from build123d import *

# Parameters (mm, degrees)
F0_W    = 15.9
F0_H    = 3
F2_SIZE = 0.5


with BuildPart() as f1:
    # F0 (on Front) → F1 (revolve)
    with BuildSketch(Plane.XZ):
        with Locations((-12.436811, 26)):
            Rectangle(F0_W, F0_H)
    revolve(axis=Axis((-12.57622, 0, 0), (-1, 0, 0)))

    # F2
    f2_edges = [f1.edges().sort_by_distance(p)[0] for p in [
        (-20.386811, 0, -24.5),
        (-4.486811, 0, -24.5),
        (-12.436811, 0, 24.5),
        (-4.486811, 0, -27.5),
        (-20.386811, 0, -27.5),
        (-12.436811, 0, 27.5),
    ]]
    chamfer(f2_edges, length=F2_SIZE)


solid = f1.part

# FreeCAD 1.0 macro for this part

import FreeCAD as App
import Part
import Sketcher


def add_polygon(sketch, points):
    """Adds a closed chain of lines whose ends are joined by coincident constraints."""
    first, n = sketch.GeometryCount, len(points)
    for a, b in zip(points, points[1:] + points[:1]):
        sketch.addGeometry(Part.LineSegment(App.Vector(*a, 0), App.Vector(*b, 0)), False)
    for i in range(n):
        sketch.addConstraint(Sketcher.Constraint("Coincident", first + i, 2, first + (i + 1) % n, 1))

doc = App.newDocument("Part")
body = doc.addObject("PartDesign::Body", "Body")

# Sketch on XZ plane
sketch1 = body.newObject("Sketcher::SketchObject", "Sketch")
sketch1.AttachmentSupport = (doc.getObject("XZ_Plane"), [""])
sketch1.MapMode = "FlatFace"
add_polygon(sketch1, [(-20.4, 27.5), (-20.4, 24.5), (-4.5, 24.5), (-4.5, 27.5)])  # lines 0-3
sketch1.addConstraint([
    Sketcher.Constraint("Vertical", 0),
    Sketcher.Constraint("Horizontal", 1),
    Sketcher.Constraint("Vertical", 2),
    Sketcher.Constraint("Horizontal", 3),
    Sketcher.Constraint("DistanceY", 0, 2, 0, 1, 3.0),
    Sketcher.Constraint("DistanceX", 1, 1, 1, 2, 15.9),
    Sketcher.Constraint("DistanceY", -1, 1, 0, 2, 24.5),
    Sketcher.Constraint("DistanceX", 0, 2, -1, 1, 20.386811),
])
revolution = body.newObject("PartDesign::Revolution", "Revolution")
revolution.Profile = sketch1
revolution.ReferenceAxis = (sketch1, ["H_Axis"])
revolution.Angle = 360
doc.recompute()

chamfer = body.newObject("PartDesign::Chamfer", "Chamfer")
chamfer.Base = (revolution, ["Edge1"])
chamfer.UseAllEdges = True
chamfer.Size = 0.5

doc.recompute()
